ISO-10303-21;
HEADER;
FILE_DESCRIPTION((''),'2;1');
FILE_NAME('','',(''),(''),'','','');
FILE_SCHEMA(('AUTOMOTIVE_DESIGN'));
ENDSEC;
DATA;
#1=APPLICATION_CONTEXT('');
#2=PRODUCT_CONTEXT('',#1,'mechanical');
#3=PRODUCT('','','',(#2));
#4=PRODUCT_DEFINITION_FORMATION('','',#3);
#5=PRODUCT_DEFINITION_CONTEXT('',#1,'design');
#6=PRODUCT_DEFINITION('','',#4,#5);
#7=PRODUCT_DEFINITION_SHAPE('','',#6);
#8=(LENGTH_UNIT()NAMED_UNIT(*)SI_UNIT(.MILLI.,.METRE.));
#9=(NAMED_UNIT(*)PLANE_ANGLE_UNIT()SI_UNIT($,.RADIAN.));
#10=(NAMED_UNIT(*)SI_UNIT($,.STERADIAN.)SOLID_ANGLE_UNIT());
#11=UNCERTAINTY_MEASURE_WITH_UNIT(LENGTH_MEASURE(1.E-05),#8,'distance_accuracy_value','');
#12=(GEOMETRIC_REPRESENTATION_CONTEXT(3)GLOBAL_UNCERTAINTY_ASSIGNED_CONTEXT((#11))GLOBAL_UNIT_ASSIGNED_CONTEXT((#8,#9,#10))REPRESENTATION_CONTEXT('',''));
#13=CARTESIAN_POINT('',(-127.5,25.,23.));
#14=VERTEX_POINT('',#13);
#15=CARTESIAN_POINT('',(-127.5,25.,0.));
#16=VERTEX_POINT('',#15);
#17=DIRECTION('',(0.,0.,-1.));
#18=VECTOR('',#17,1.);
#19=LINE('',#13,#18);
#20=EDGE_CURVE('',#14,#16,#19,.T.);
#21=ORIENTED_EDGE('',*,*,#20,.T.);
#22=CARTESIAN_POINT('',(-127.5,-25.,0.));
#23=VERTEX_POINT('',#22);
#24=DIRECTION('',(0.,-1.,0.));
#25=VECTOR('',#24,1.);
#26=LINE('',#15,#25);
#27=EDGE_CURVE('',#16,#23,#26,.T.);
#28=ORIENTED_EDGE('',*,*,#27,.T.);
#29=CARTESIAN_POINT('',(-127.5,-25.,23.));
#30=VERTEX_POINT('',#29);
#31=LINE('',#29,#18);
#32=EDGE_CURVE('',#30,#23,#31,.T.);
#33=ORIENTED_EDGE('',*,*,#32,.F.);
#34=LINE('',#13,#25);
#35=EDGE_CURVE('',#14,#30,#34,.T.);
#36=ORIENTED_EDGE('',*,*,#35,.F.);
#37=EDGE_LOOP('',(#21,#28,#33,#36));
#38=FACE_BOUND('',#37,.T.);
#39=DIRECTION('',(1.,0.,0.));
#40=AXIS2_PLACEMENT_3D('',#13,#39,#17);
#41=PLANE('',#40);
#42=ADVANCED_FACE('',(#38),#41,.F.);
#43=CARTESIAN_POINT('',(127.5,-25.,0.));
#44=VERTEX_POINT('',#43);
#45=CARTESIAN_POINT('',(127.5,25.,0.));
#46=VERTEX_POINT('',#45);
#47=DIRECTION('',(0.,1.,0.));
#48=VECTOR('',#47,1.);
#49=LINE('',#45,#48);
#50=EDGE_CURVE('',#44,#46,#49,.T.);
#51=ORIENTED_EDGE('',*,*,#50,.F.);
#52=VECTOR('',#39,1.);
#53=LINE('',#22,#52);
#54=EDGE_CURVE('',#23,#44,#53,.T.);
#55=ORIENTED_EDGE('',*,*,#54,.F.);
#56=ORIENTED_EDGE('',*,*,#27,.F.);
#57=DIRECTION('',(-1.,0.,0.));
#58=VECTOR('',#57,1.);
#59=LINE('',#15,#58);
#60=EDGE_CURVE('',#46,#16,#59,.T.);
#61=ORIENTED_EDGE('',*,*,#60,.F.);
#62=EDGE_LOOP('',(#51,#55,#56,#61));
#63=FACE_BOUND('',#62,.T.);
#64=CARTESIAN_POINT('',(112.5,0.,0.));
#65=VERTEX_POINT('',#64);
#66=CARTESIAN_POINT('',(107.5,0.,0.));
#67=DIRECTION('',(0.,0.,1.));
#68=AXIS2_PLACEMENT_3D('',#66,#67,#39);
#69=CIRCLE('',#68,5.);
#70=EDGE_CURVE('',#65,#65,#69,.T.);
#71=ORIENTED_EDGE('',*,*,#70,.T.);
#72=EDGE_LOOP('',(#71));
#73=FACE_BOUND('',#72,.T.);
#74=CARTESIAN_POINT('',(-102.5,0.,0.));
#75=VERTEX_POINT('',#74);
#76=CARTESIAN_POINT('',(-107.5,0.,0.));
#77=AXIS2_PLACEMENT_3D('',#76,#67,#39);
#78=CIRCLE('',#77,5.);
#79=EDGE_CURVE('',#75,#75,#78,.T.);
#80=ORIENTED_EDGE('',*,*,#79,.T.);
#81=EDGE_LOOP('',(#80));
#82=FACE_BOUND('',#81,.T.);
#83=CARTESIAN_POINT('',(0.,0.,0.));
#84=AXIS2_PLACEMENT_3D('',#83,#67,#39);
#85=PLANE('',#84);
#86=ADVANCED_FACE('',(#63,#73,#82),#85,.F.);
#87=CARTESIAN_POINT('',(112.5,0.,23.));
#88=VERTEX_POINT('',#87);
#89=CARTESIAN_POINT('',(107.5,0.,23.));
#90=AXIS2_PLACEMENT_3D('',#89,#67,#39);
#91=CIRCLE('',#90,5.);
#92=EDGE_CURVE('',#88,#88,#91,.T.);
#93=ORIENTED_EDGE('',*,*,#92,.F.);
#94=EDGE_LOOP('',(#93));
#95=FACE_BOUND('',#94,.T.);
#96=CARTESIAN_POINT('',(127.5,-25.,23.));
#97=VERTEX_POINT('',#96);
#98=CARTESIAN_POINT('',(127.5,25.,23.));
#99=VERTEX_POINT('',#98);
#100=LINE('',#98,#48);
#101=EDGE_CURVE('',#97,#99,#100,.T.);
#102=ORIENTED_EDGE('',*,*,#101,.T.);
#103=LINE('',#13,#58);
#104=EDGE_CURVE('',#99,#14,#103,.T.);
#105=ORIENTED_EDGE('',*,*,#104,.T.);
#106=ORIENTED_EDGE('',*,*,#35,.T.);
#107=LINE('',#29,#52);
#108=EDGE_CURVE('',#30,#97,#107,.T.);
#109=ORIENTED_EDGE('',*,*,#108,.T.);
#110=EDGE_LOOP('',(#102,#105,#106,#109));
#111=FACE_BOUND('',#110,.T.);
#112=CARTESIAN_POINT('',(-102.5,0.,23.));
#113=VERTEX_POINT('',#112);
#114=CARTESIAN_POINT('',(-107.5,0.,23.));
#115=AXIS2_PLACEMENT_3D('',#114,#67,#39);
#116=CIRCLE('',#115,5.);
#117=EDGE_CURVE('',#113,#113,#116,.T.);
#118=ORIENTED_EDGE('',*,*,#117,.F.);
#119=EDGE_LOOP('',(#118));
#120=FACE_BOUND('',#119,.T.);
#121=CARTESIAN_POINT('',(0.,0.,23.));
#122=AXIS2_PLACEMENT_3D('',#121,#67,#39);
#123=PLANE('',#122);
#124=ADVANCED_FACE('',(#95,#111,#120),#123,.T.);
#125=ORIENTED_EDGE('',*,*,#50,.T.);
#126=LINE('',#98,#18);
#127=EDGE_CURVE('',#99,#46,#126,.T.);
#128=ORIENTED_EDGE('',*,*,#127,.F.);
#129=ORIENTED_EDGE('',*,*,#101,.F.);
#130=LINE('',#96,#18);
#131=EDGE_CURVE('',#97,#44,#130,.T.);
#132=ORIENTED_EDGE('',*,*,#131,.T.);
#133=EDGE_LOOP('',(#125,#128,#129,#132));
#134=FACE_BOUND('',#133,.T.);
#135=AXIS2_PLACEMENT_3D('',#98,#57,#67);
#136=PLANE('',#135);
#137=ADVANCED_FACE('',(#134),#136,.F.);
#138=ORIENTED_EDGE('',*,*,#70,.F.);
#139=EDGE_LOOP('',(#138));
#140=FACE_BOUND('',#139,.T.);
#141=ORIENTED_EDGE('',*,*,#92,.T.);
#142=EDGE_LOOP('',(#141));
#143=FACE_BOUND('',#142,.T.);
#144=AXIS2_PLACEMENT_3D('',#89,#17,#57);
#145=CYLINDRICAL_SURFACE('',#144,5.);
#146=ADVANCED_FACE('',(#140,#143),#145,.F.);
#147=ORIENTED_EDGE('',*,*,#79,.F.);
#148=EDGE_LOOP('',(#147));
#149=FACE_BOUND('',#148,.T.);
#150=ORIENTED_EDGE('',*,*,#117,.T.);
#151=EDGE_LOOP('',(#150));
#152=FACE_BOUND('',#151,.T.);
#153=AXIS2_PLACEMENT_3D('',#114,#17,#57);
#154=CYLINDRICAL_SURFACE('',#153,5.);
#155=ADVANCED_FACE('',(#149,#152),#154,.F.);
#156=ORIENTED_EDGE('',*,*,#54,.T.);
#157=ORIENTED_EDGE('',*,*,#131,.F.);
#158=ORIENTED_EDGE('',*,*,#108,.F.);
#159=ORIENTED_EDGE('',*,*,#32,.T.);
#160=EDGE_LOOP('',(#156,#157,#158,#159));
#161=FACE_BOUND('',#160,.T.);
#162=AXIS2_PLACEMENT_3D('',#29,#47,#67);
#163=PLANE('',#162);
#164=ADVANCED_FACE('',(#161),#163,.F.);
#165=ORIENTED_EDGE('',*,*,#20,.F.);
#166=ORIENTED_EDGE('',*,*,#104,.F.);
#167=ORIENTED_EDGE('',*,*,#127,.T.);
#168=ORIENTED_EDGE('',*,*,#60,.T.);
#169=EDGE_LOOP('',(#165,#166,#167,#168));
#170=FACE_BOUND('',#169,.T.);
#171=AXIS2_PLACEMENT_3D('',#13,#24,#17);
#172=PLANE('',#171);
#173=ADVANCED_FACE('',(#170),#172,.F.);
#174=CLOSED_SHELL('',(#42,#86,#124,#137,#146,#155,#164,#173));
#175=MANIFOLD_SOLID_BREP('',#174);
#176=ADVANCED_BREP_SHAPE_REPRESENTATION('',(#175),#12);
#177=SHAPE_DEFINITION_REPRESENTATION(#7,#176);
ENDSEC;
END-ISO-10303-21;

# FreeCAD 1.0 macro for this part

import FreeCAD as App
import Part
import Sketcher


def add_polygon(sketch, points):
    """Adds a closed chain of lines whose ends are joined by coincident constraints."""
    first, n = sketch.GeometryCount, len(points)
    for a, b in zip(points, points[1:] + points[:1]):
        sketch.addGeometry(Part.LineSegment(App.Vector(*a, 0), App.Vector(*b, 0)), False)
    for i in range(n):
        sketch.addConstraint(Sketcher.Constraint("Coincident", first + i, 2, first + (i + 1) % n, 1))

doc = App.newDocument("Part")
body = doc.addObject("PartDesign::Body", "Body")

# Sketch on XY plane
sketch1 = body.newObject("Sketcher::SketchObject", "Sketch")
sketch1.AttachmentSupport = (doc.getObject("XY_Plane"), [""])
sketch1.MapMode = "FlatFace"
add_polygon(sketch1, [(-128, 25), (-128, -25), (128, -25), (128, 25)])  # lines 0-3
sketch1.addGeometry(Part.Circle(App.Vector(-108, 0, 0), App.Vector(0, 0, 1), 5), False)  # 4
sketch1.addGeometry(Part.Circle(App.Vector(108, 0, 0), App.Vector(0, 0, 1), 5), False)  # 5
sketch1.addConstraint(Sketcher.Constraint("Vertical", 0))
sketch1.addConstraint(Sketcher.Constraint("Horizontal", 1))
sketch1.addConstraint(Sketcher.Constraint("Vertical", 2))
sketch1.addConstraint(Sketcher.Constraint("Horizontal", 3))
sketch1.addConstraint(Sketcher.Constraint("Equal", 4, 5))
sketch1.addConstraint(Sketcher.Constraint("Symmetric", 4, 3, 5, 3, -1, 1))
sketch1.addConstraint(Sketcher.Constraint("Symmetric", 0, 2, 2, 2, -1, 1))
sketch1.addConstraint(Sketcher.Constraint("PointOnObject", 4, 3, -1))
sketch1.addConstraint(Sketcher.Constraint("Diameter", 4, 10.0))
sketch1.addConstraint(Sketcher.Constraint("DistanceX", 1, 1, 1, 2, 255.0))
sketch1.addConstraint(Sketcher.Constraint("DistanceY", 0, 2, 0, 1, 50.0))
sketch1.addConstraint(Sketcher.Constraint("DistanceX", 4, 3, 5, 3, 215.0))
pad1 = body.newObject("PartDesign::Pad", "Pad")
pad1.Profile = sketch1
pad1.Length = 23

doc.recompute()
